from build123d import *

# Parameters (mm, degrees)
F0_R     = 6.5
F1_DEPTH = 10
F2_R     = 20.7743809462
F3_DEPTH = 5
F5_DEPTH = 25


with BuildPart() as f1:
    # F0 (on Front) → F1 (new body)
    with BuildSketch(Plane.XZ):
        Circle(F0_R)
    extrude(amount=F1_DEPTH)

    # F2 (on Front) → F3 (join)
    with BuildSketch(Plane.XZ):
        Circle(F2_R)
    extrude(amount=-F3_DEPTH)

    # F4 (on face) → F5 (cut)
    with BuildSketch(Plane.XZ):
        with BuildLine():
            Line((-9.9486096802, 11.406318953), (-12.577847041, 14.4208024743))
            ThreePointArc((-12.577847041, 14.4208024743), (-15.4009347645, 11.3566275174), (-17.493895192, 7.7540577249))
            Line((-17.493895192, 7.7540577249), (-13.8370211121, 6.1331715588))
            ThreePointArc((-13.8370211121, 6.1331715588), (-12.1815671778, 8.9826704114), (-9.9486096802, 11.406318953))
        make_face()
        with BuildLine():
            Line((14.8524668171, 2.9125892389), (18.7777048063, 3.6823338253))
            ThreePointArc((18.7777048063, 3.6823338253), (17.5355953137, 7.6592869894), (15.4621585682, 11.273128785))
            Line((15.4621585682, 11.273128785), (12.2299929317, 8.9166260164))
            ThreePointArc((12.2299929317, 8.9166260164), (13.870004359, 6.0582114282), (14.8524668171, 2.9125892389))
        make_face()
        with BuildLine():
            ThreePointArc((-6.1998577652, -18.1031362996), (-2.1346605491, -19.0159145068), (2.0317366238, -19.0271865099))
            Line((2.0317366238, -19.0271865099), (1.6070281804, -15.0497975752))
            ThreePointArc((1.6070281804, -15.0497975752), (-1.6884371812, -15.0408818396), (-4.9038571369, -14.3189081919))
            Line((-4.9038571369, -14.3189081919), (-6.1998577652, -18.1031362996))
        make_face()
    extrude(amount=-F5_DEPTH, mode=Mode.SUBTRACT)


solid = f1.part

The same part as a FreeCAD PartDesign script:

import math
import FreeCAD as App
import Part
import Sketcher

doc = App.newDocument("Part")
params = doc.addObject("Spreadsheet::Sheet", "Params")
for row, (alias, value) in enumerate([
    ("sketch1_diameter", "13 mm"),
    ("pad1_length", "10 mm"),
    ("pad2_length", "5 mm"),
    ("sketch3_length", "4 mm"),
    ("pocket1_length", "25 mm"),
], start=1):
    params.set(f"A{row}", alias)
    params.set(f"B{row}", "=" + value)
    params.setAlias(f"B{row}", alias)

body = doc.addObject("PartDesign::Body", "Body")

sketch1 = body.newObject("Sketcher::SketchObject", "Sketch")
sketch1.AttachmentSupport = (doc.getObject("XZ_Plane"), [""])
sketch1.MapMode = "FlatFace"
sketch1.addGeometry(Part.Circle(App.Vector(0, 0, 0), App.Vector(0, 0, 1), 6.5), False)
sketch1.addConstraint([
    Sketcher.Constraint("Coincident", 0, 3, -1, 1),
    Sketcher.Constraint("Diameter", 0, 13.0),
])
sketch1.setExpression("Constraints[1]", "Params.sketch1_diameter")
pad1 = body.newObject("PartDesign::Pad", "Pad")
pad1.Profile = sketch1
pad1.setExpression("Length", "Params.pad1_length")

sketch2 = body.newObject("Sketcher::SketchObject", "Sketch001")
sketch2.AttachmentSupport = (doc.getObject("XZ_Plane"), [""])
sketch2.MapMode = "FlatFace"
sketch2.addGeometry(Part.Circle(App.Vector(0, 0, 0), App.Vector(0, 0, 1), 20.774381), False)
sketch2.addConstraint([
    Sketcher.Constraint("Coincident", 0, 3, -1, 1),
    Sketcher.Constraint("Diameter", 0, 41.548762),
])
pad2 = body.newObject("PartDesign::Pad", "Pad001")
pad2.Profile = sketch2
pad2.setExpression("Length", "Params.pad2_length")
pad2.Reversed = True

sketch3 = body.newObject("Sketcher::SketchObject", "Sketch002")
sketch3.AttachmentSupport = (doc.getObject("XZ_Plane"), [""])
sketch3.MapMode = "FlatFace"
sketch3.addGeometry([
    Part.LineSegment(App.Vector(-9.94861, 11.406319, 0), App.Vector(-12.577847, 14.420802, 0)),
    Part.ArcOfCircle(Part.Circle(App.Vector(0, 0, 0), App.Vector(0, 0, 1), 19.135354), math.radians(131.094989), math.radians(156.094989)),
    Part.LineSegment(App.Vector(-17.493895, 7.754058, 0), App.Vector(-13.837021, 6.133172, 0)),
    Part.ArcOfCircle(Part.Circle(App.Vector(0, 0, 0), App.Vector(0, 0, 1), 15.135354), math.radians(131.094989), math.radians(156.094989)),
    Part.LineSegment(App.Vector(14.852467, 2.912589, 0), App.Vector(18.777705, 3.682334, 0)),
    Part.ArcOfCircle(Part.Circle(App.Vector(0, 0, 0), App.Vector(0, 0, 1), 19.135354), math.radians(11.094989), math.radians(36.094989)),
    Part.LineSegment(App.Vector(15.462159, 11.273129, 0), App.Vector(12.229993, 8.916626, 0)),
    Part.ArcOfCircle(Part.Circle(App.Vector(0, 0, 0), App.Vector(0, 0, 1), 15.135354), math.radians(11.094989), math.radians(36.094989)),
    Part.ArcOfCircle(Part.Circle(App.Vector(0, 0, 0), App.Vector(0, 0, 1), 19.135354), math.radians(-108.905011), math.radians(-83.905011)),
    Part.LineSegment(App.Vector(2.031737, -19.027187, 0), App.Vector(1.607028, -15.049798, 0)),
    Part.ArcOfCircle(Part.Circle(App.Vector(0, 0, 0), App.Vector(0, 0, 1), 15.135354), math.radians(-108.905011), math.radians(-83.905011)),
    Part.LineSegment(App.Vector(-4.903857, -14.318908, 0), App.Vector(-6.199858, -18.103136, 0)),
], False)
sketch3.addConstraint([
    Sketcher.Constraint("Coincident", 0, 2, 1, 1),
    Sketcher.Constraint("Coincident", 1, 2, 2, 1),
    Sketcher.Constraint("Coincident", 2, 2, 3, 2),
    Sketcher.Constraint("Coincident", 3, 1, 0, 1),
    Sketcher.Constraint("Coincident", 4, 2, 5, 1),
    Sketcher.Constraint("Coincident", 5, 2, 6, 1),
    Sketcher.Constraint("Coincident", 6, 2, 7, 2),
    Sketcher.Constraint("Coincident", 7, 1, 4, 1),
    Sketcher.Constraint("Coincident", 8, 2, 9, 1),
    Sketcher.Constraint("Coincident", 9, 2, 10, 2),
    Sketcher.Constraint("Coincident", 10, 1, 11, 1),
    Sketcher.Constraint("Coincident", 11, 2, 8, 1),
    Sketcher.Constraint("Coincident", 1, 3, -1, 1),
    Sketcher.Constraint("Coincident", 3, 3, -1, 1),
    Sketcher.Constraint("Coincident", 5, 3, -1, 1),
    Sketcher.Constraint("Coincident", 7, 3, -1, 1),
    Sketcher.Constraint("Coincident", 8, 3, -1, 1),
    Sketcher.Constraint("Coincident", 10, 3, -1, 1),
    Sketcher.Constraint("Equal", 1, 5),
    Sketcher.Constraint("Equal", 3, 7),
    Sketcher.Constraint("Equal", 5, 8),
    Sketcher.Constraint("Equal", 7, 10),
    Sketcher.Constraint("Distance", 0, 4.0),
    Sketcher.Constraint("Radius", 1, 19.135354),
    Sketcher.Constraint("DistanceX", 11, 2, 10, 1, 1.296001),
    Sketcher.Constraint("DistanceX", 2, 2, -1, 1, 13.837021),
    Sketcher.Constraint("DistanceX", 3, 1, -1, 1, 9.94861),
    Sketcher.Constraint("DistanceX", -1, 1, 5, 2, 15.462159),
    Sketcher.Constraint("DistanceY", -1, 1, 7, 1, 2.912589),
    Sketcher.Constraint("DistanceX", -1, 1, 9, 2, 1.607028),
    Sketcher.Constraint("DistanceY", 10, 1, -1, 1, 14.318908),
    Sketcher.Constraint("DistanceX", 1, 2, 0, 2, 4.916048),
    Sketcher.Constraint("DistanceY", 2, 2, 0, 2, 8.287631),
    Sketcher.Constraint("DistanceX", 6, 2, 4, 2, 6.547712),
    Sketcher.Constraint("DistanceX", 9, 2, 8, 2, 0.424708),
    Sketcher.Constraint("DistanceX", -1, 1, 4, 2, 18.777705),
])
sketch3.setExpression("Constraints[22]", "Params.sketch3_length")
pocket1 = body.newObject("PartDesign::Pocket", "Pocket")
pocket1.Profile = sketch3
pocket1.setExpression("Length", "Params.pocket1_length")

doc.recompute()
